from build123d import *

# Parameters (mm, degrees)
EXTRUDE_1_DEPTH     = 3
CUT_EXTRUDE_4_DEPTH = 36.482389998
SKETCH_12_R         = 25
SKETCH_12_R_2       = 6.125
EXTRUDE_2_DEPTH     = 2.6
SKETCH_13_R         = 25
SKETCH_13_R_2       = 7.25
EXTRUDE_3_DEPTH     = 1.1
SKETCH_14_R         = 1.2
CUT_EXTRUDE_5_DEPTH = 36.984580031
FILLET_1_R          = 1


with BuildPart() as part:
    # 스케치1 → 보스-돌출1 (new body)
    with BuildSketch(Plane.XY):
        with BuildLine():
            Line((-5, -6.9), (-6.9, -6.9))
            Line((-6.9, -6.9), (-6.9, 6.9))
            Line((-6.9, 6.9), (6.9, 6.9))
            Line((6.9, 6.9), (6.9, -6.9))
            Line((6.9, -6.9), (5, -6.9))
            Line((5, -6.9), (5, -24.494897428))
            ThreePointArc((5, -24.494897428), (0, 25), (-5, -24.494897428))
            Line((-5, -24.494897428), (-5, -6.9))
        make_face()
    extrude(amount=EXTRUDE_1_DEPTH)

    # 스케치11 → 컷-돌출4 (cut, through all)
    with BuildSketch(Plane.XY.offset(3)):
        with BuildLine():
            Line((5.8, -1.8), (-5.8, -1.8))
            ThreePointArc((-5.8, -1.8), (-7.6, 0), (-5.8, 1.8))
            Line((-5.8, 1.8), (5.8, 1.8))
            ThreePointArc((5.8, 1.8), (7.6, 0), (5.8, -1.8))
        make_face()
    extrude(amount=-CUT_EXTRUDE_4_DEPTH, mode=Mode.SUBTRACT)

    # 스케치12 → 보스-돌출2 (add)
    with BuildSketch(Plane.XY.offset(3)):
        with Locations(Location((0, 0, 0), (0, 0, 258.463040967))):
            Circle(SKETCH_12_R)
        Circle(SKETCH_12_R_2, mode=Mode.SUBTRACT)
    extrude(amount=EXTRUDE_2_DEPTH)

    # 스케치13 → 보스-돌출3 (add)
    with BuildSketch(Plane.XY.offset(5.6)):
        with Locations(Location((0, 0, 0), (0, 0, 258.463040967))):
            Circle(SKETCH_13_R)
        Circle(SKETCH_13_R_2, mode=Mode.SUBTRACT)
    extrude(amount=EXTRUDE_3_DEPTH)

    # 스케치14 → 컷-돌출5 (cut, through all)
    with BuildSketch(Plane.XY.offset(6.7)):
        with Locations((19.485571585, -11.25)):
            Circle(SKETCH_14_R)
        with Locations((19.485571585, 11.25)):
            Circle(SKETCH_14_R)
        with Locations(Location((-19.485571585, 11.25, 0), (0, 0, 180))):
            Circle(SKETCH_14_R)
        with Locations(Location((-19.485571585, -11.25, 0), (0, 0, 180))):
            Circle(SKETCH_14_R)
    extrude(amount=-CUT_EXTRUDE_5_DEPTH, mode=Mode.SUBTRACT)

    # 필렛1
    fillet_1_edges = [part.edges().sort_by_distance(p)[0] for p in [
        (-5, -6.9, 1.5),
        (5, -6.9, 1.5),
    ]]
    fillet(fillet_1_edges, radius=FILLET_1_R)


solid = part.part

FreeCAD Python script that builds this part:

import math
import FreeCAD as App
import Part
import Sketcher


def edges_at(feature, points):
    """Names of the edges that pass closest to the given points."""
    edges = feature.Shape.Edges
    near = lambda p: min(range(len(edges)), key=lambda i: edges[i].distToShape(Part.Vertex(*p))[0])
    return sorted({f"Edge{near(p) + 1}" for p in points})

doc = App.newDocument("Part")
body = doc.addObject("PartDesign::Body", "Body")

sketch1 = body.newObject("Sketcher::SketchObject", "Sketch")
sketch1.AttachmentSupport = (doc.getObject("XY_Plane"), [""])
sketch1.MapMode = "FlatFace"
sketch1.addGeometry(Part.LineSegment(App.Vector(-5, -6.9, 0), App.Vector(-6.9, -6.9, 0)), False)
sketch1.addGeometry(Part.LineSegment(App.Vector(-6.9, -6.9, 0), App.Vector(-6.9, 6.9, 0)), False)
sketch1.addGeometry(Part.LineSegment(App.Vector(-6.9, 6.9, 0), App.Vector(6.9, 6.9, 0)), False)
sketch1.addGeometry(Part.LineSegment(App.Vector(6.9, 6.9, 0), App.Vector(6.9, -6.9, 0)), False)
sketch1.addGeometry(Part.LineSegment(App.Vector(6.9, -6.9, 0), App.Vector(5, -6.9, 0)), False)
sketch1.addGeometry(Part.LineSegment(App.Vector(5, -6.9, 0), App.Vector(5, -24.5, 0)), False)
sketch1.addGeometry(Part.ArcOfCircle(Part.Circle(App.Vector(0, 0, 0), App.Vector(0, 0, 1), 25), math.radians(-78), math.radians(258)), False)
sketch1.addGeometry(Part.LineSegment(App.Vector(-5, -24.5, 0), App.Vector(-5, -6.9, 0)), False)
sketch1.addConstraint(Sketcher.Constraint("Coincident", 0, 2, 1, 1))
sketch1.addConstraint(Sketcher.Constraint("Coincident", 1, 2, 2, 1))
sketch1.addConstraint(Sketcher.Constraint("Coincident", 2, 2, 3, 1))
sketch1.addConstraint(Sketcher.Constraint("Coincident", 3, 2, 4, 1))
sketch1.addConstraint(Sketcher.Constraint("Coincident", 4, 2, 5, 1))
sketch1.addConstraint(Sketcher.Constraint("Coincident", 5, 2, 6, 1))
sketch1.addConstraint(Sketcher.Constraint("Coincident", 6, 2, 7, 1))
sketch1.addConstraint(Sketcher.Constraint("Coincident", 7, 2, 0, 1))
sketch1.addConstraint(Sketcher.Constraint("Horizontal", 0))
sketch1.addConstraint(Sketcher.Constraint("Vertical", 1))
sketch1.addConstraint(Sketcher.Constraint("Horizontal", 2))
sketch1.addConstraint(Sketcher.Constraint("Vertical", 3))
sketch1.addConstraint(Sketcher.Constraint("Horizontal", 4))
sketch1.addConstraint(Sketcher.Constraint("Vertical", 5))
sketch1.addConstraint(Sketcher.Constraint("Vertical", 7))
sketch1.addConstraint(Sketcher.Constraint("Coincident", 6, 3, -1, 1))
sketch1.addConstraint(Sketcher.Constraint("Symmetric", 0, 2, 2, 2, -1, 1))
sketch1.addConstraint(Sketcher.Constraint("Symmetric", 4, 2, 7, 2, -2))
sketch1.addConstraint(Sketcher.Constraint("Equal", 2, 1))
sketch1.addConstraint(Sketcher.Constraint("Radius", 6, 25.0))
sketch1.addConstraint(Sketcher.Constraint("DistanceX", 0, 2, 0, 1, 1.9))
sketch1.addConstraint(Sketcher.Constraint("DistanceX", 2, 1, 2, 2, 13.8))
pad1 = body.newObject("PartDesign::Pad", "Pad")
pad1.Profile = sketch1
pad1.Length = 3

sketch2 = body.newObject("Sketcher::SketchObject", "Sketch001")
sketch2.AttachmentSupport = (doc.getObject("XY_Plane"), [""])
sketch2.MapMode = "FlatFace"
sketch2.AttachmentOffset = App.Placement(App.Vector(0, 0, 3), App.Rotation())
sketch2.addGeometry(Part.LineSegment(App.Vector(-5.8, -1.8, 0), App.Vector(5.8, -1.8, 0)), False)
sketch2.addGeometry(Part.ArcOfCircle(Part.Circle(App.Vector(5.8, 0, 0), App.Vector(0, 0, 1), 1.8), math.radians(-90), math.radians(90)), False)
sketch2.addGeometry(Part.LineSegment(App.Vector(5.8, 1.8, 0), App.Vector(-5.8, 1.8, 0)), False)
sketch2.addGeometry(Part.ArcOfCircle(Part.Circle(App.Vector(-5.8, 0, 0), App.Vector(0, 0, 1), 1.8), math.radians(90), math.radians(270)), False)
sketch2.addConstraint(Sketcher.Constraint("Tangent", 0, 2, 1, 1))
sketch2.addConstraint(Sketcher.Constraint("Tangent", 1, 2, 2, 1))
sketch2.addConstraint(Sketcher.Constraint("Tangent", 2, 2, 3, 1))
sketch2.addConstraint(Sketcher.Constraint("Tangent", 3, 2, 0, 1))
sketch2.addConstraint(Sketcher.Constraint("Horizontal", 0))
sketch2.addConstraint(Sketcher.Constraint("Horizontal", 2))
sketch2.addConstraint(Sketcher.Constraint("Symmetric", 1, 3, 3, 3, -1, 1))
sketch2.addConstraint(Sketcher.Constraint("Radius", 1, 1.8))
sketch2.addConstraint(Sketcher.Constraint("DistanceX", 0, 1, 0, 2, 11.6))
pocket1 = body.newObject("PartDesign::Pocket", "Pocket")
pocket1.Profile = sketch2
pocket1.Type = "ThroughAll"

sketch3 = body.newObject("Sketcher::SketchObject", "Sketch002")
sketch3.AttachmentSupport = (doc.getObject("XY_Plane"), [""])
sketch3.MapMode = "FlatFace"
sketch3.AttachmentOffset = App.Placement(App.Vector(0, 0, 3), App.Rotation())
sketch3.addGeometry(Part.Circle(App.Vector(0, 0, 0), App.Vector(0, 0, 1), 25), False)
sketch3.addGeometry(Part.Circle(App.Vector(0, 0, 0), App.Vector(0, 0, 1), 6), False)
sketch3.addConstraint(Sketcher.Constraint("Coincident", 0, 3, -1, 1))
sketch3.addConstraint(Sketcher.Constraint("Coincident", 1, 3, -1, 1))
sketch3.addConstraint(Sketcher.Constraint("Diameter", 0, 50.0))
sketch3.addConstraint(Sketcher.Constraint("Diameter", 1, 12.25))
pad2 = body.newObject("PartDesign::Pad", "Pad001")
pad2.Profile = sketch3
pad2.Length = 2.6

sketch4 = body.newObject("Sketcher::SketchObject", "Sketch003")
sketch4.AttachmentSupport = (doc.getObject("XY_Plane"), [""])
sketch4.MapMode = "FlatFace"
sketch4.AttachmentOffset = App.Placement(App.Vector(0, 0, 5.6), App.Rotation())
sketch4.addGeometry(Part.Circle(App.Vector(0, 0, 0), App.Vector(0, 0, 1), 25), False)
sketch4.addGeometry(Part.Circle(App.Vector(0, 0, 0), App.Vector(0, 0, 1), 7), False)
sketch4.addConstraint(Sketcher.Constraint("Coincident", 0, 3, -1, 1))
sketch4.addConstraint(Sketcher.Constraint("Coincident", 1, 3, -1, 1))
sketch4.addConstraint(Sketcher.Constraint("Diameter", 0, 50.0))
sketch4.addConstraint(Sketcher.Constraint("Diameter", 1, 14.5))
pad3 = body.newObject("PartDesign::Pad", "Pad002")
pad3.Profile = sketch4
pad3.Length = 1.1

sketch5 = body.newObject("Sketcher::SketchObject", "Sketch004")
sketch5.AttachmentSupport = (doc.getObject("XY_Plane"), [""])
sketch5.MapMode = "FlatFace"
sketch5.AttachmentOffset = App.Placement(App.Vector(0, 0, 6.7), App.Rotation())
sketch5.addGeometry(Part.Circle(App.Vector(19.5, -11.2, 0), App.Vector(0, 0, 1), 1.2), False)
sketch5.addGeometry(Part.Circle(App.Vector(19.5, 11.2, 0), App.Vector(0, 0, 1), 1.2), False)
sketch5.addGeometry(Part.Circle(App.Vector(-19.5, 11.2, 0), App.Vector(0, 0, 1), 1.2), False)
sketch5.addGeometry(Part.Circle(App.Vector(-19.5, -11.2, 0), App.Vector(0, 0, 1), 1.2), False)
sketch5.addConstraint(Sketcher.Constraint("Equal", 0, 1))
sketch5.addConstraint(Sketcher.Constraint("Equal", 1, 2))
sketch5.addConstraint(Sketcher.Constraint("Equal", 2, 3))
sketch5.addConstraint(Sketcher.Constraint("Symmetric", 0, 3, 2, 3, -1, 1))
sketch5.addConstraint(Sketcher.Constraint("Symmetric", 1, 3, 3, 3, -1, 1))
sketch5.addConstraint(Sketcher.Constraint("Symmetric", 1, 3, 2, 3, -2))
sketch5.addConstraint(Sketcher.Constraint("Diameter", 0, 2.4))
sketch5.addConstraint(Sketcher.Constraint("DistanceY", 0, 3, 1, 3, 22.5))
sketch5.addConstraint(Sketcher.Constraint("DistanceX", -1, 1, 0, 3, 19.485572))
pocket2 = body.newObject("PartDesign::Pocket", "Pocket001")
pocket2.Profile = sketch5
pocket2.Type = "ThroughAll"
doc.recompute()

fillet = body.newObject("PartDesign::Fillet", "Fillet")
fillet.Base = (pocket2, edges_at(pocket2, [(-5, -6.9, 1.5), (5, -6.9, 1.5)]))
fillet.Radius = 1

doc.recompute()
